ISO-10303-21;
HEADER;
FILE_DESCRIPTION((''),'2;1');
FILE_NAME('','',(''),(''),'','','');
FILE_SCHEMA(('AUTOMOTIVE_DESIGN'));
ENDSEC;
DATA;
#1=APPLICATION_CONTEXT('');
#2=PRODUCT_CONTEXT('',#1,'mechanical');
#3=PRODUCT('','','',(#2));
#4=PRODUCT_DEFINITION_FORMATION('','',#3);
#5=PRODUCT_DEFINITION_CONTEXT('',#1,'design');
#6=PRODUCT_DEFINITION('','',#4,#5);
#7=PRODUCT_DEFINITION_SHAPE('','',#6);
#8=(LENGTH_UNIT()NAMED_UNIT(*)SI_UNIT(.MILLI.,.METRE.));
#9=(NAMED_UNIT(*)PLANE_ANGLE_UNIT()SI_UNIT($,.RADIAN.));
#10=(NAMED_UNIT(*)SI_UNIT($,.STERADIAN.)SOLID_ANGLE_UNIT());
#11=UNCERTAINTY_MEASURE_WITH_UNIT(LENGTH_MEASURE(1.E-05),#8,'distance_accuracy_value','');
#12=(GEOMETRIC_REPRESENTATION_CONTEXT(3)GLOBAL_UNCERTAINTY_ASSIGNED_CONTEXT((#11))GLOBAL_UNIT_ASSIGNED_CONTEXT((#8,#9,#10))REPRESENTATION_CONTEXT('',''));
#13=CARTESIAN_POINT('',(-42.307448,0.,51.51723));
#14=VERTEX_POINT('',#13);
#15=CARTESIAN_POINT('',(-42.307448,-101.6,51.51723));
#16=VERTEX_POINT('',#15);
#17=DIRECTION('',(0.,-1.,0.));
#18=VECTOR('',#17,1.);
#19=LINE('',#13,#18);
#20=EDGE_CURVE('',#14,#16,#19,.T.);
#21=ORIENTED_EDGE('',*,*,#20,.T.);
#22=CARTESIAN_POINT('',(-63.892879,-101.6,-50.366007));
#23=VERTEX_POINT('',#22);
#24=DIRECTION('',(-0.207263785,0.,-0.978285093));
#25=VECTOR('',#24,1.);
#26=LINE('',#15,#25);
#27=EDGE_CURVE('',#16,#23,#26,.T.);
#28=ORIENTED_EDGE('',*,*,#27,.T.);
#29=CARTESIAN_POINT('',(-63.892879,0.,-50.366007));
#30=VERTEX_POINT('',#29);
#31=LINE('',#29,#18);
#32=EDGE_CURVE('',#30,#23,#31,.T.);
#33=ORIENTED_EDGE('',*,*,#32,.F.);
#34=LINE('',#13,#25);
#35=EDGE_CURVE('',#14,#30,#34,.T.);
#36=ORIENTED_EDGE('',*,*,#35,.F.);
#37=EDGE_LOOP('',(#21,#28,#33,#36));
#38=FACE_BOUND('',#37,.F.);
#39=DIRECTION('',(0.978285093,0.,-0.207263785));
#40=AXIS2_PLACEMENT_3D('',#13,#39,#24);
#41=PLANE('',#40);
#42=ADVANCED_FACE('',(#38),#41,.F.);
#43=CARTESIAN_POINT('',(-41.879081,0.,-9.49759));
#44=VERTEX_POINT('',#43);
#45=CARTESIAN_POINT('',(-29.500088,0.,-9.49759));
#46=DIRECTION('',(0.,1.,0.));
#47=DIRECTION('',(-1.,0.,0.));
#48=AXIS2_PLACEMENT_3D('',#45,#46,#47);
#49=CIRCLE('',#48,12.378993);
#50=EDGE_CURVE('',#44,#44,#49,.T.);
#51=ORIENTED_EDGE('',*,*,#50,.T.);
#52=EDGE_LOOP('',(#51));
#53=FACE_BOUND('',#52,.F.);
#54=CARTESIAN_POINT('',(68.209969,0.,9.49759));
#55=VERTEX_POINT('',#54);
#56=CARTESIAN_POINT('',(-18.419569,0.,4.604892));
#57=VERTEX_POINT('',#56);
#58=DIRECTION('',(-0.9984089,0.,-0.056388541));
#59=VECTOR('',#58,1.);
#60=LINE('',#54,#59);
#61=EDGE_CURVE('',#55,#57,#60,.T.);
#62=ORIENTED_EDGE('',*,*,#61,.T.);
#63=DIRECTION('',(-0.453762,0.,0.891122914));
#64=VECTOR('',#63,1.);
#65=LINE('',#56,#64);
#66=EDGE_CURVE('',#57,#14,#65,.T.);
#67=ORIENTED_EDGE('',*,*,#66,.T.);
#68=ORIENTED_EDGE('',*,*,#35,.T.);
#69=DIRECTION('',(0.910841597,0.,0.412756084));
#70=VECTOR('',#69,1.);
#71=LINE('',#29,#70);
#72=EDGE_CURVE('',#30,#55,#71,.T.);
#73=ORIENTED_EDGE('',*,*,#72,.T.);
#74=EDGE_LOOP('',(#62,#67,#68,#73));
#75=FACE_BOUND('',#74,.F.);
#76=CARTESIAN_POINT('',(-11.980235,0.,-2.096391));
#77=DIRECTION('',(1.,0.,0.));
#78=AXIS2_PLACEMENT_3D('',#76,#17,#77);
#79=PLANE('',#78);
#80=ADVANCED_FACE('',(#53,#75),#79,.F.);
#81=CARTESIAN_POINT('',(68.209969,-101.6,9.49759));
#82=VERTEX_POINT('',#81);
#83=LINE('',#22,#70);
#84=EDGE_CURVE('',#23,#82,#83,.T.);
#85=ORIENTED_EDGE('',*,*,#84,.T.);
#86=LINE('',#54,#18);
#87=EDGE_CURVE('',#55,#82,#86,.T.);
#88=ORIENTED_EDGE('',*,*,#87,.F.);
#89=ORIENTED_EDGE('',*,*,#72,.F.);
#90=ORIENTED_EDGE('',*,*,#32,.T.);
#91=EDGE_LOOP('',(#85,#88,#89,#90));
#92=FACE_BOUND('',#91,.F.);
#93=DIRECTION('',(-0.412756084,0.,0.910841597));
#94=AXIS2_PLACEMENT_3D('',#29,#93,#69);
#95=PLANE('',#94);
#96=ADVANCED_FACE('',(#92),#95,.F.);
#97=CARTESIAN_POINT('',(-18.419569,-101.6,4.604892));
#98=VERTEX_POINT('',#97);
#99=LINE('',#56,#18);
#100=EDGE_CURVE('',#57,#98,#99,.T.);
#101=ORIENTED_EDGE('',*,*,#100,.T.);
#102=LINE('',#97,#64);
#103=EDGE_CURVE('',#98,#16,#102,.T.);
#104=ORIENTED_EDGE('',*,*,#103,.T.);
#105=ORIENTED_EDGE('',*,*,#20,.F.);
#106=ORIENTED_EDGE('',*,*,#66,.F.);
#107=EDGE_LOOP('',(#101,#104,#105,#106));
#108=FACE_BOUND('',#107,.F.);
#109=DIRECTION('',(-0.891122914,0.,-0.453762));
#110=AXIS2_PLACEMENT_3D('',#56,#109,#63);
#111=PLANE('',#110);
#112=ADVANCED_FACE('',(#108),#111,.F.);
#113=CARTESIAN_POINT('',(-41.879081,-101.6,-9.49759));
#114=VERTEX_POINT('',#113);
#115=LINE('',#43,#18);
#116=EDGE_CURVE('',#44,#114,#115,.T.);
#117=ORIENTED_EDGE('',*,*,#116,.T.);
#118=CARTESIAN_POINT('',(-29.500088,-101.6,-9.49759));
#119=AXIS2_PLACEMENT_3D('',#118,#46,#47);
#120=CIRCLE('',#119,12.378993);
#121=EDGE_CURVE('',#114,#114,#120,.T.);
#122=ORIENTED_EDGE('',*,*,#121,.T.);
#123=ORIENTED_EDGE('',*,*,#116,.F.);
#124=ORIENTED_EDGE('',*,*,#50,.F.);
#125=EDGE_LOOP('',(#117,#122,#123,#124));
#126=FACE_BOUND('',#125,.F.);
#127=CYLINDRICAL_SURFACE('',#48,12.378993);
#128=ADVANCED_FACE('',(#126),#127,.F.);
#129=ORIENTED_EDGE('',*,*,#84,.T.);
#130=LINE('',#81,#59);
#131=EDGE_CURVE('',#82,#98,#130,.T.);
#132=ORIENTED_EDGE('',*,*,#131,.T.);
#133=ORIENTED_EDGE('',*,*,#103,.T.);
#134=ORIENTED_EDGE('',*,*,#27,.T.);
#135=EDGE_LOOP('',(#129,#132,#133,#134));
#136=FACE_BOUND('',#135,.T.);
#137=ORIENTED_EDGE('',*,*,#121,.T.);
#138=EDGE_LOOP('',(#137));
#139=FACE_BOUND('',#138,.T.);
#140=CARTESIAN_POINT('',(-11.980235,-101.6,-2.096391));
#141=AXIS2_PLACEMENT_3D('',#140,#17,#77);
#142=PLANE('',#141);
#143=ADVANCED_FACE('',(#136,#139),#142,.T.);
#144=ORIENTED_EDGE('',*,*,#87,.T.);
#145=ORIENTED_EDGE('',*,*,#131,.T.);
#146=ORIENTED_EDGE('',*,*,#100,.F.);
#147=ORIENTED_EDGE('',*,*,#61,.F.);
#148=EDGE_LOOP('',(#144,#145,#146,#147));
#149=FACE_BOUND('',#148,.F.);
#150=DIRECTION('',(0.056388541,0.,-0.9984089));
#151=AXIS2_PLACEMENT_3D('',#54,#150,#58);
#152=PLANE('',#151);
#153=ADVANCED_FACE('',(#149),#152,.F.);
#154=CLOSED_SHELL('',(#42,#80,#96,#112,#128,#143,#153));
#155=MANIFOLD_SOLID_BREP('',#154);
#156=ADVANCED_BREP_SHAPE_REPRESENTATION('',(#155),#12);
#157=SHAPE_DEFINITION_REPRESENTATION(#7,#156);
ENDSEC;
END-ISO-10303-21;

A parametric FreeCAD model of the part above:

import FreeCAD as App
import Part
import Sketcher
from FreeCAD import Vector
Q = App.Units.Quantity


def add_polygon(sketch, points):
    """Adds a closed chain of lines whose ends are joined by coincident constraints."""
    first, n = sketch.GeometryCount, len(points)
    for a, b in zip(points, points[1:] + points[:1]):
        sketch.addGeometry(Part.LineSegment(App.Vector(*a, 0), App.Vector(*b, 0)), False)
    for i in range(n):
        sketch.addConstraint(Sketcher.Constraint("Coincident", first + i, 2, first + (i + 1) % n, 1))

doc = App.newDocument("Part")
params = doc.addObject("Spreadsheet::Sheet", "Params")
for row, (alias, value) in enumerate([
    ("pad1_length", "4 in"),
    ("pad2_length", "4 in"),
    ("pocket1_length", "4 in"),
], start=1):
    params.set(f"A{row}", alias)
    params.set(f"B{row}", "=" + value)
    params.setAlias(f"B{row}", alias)

body = doc.addObject("PartDesign::Body", "Body")

# Sketch on XZ plane
sketch1 = doc.addObject("Sketcher::SketchObject", "Sketch")
body.addObject(sketch1)
sketch1.AttachmentSupport = (doc.XZ_Plane, [""])
sketch1.MapMode = "FlatFace"
add_polygon(sketch1, [(-18, 5), (-42, 52), (-64, -50), (68, 9)])  # lines 0-3
sketch1.addConstraint(Sketcher.Constraint("DistanceY", 1, 2, 3, 2, Q("54.970899 mm")))
sketch1.addConstraint(Sketcher.Constraint("DistanceY", 3, 2, 2, 2, Q("4.892698 mm")))
sketch1.addConstraint(Sketcher.Constraint("Distance", 0, Q("52.644071 mm")))
sketch1.addConstraint(Sketcher.Constraint("Distance", 1, Q("104.14473 mm")))
sketch1.addConstraint(Sketcher.Constraint("DistanceY", -1, 1, 0, 2, Q("51.51723 mm")))
sketch1.addConstraint(Sketcher.Constraint("DistanceX", 1, 2, -1, 1, Q("63.892879 mm")))
sketch1.addConstraint(Sketcher.Constraint("DistanceX", -1, 1, 2, 2, Q("68.209969 mm")))
sketch1.addConstraint(Sketcher.Constraint("DistanceY", -1, 1, 2, 2, Q("9.49759 mm")))
pad1 = doc.addObject("PartDesign::Pad", "Pad")
body.addObject(pad1)
pad1.Profile = sketch1
pad1.setExpression("Length", "Params.pad1_length")

# Sketch on XZ plane
sketch2 = doc.addObject("Sketcher::SketchObject", "Sketch001")
body.addObject(sketch2)
sketch2.AttachmentSupport = (doc.XZ_Plane, [""])
sketch2.MapMode = "FlatFace"
sketch2.addGeometry(Part.Circle(Vector(-29, -10, 0), Vector(0, 0, 1), 12), False)
sketch2.addConstraint(Sketcher.Constraint("Diameter", 0, Q("23.494542 mm")))
sketch2.addConstraint(Sketcher.Constraint("DistanceX", 0, 3, -1, 1, Q("29.212283 mm")))
sketch2.addConstraint(Sketcher.Constraint("DistanceY", 0, 3, -1, 1, Q("10.073202 mm")))
pad2 = doc.addObject("PartDesign::Pad", "Pad001")
body.addObject(pad2)
pad2.Profile = sketch2
pad2.setExpression("Length", "Params.pad2_length")

# Sketch on XZ plane
sketch3 = doc.addObject("Sketcher::SketchObject", "Sketch002")
body.addObject(sketch3)
sketch3.AttachmentSupport = (doc.XZ_Plane, [""])
sketch3.MapMode = "FlatFace"
sketch3.addGeometry(Part.Circle(Vector(-30, -9, 0), Vector(0, 0, 1), 12), False)
sketch3.addConstraint(Sketcher.Constraint("Diameter", 0, Q("24.757986 mm")))
sketch3.addConstraint(Sketcher.Constraint("DistanceX", 0, 3, -1, 1, Q("29.500088 mm")))
sketch3.addConstraint(Sketcher.Constraint("DistanceY", 0, 3, -1, 1, Q("9.49759 mm")))
pocket1 = doc.addObject("PartDesign::Pocket", "Pocket")
body.addObject(pocket1)
pocket1.Profile = sketch3
pocket1.setExpression("Length", "Params.pocket1_length")
pocket1.Reversed = True

doc.recompute()
